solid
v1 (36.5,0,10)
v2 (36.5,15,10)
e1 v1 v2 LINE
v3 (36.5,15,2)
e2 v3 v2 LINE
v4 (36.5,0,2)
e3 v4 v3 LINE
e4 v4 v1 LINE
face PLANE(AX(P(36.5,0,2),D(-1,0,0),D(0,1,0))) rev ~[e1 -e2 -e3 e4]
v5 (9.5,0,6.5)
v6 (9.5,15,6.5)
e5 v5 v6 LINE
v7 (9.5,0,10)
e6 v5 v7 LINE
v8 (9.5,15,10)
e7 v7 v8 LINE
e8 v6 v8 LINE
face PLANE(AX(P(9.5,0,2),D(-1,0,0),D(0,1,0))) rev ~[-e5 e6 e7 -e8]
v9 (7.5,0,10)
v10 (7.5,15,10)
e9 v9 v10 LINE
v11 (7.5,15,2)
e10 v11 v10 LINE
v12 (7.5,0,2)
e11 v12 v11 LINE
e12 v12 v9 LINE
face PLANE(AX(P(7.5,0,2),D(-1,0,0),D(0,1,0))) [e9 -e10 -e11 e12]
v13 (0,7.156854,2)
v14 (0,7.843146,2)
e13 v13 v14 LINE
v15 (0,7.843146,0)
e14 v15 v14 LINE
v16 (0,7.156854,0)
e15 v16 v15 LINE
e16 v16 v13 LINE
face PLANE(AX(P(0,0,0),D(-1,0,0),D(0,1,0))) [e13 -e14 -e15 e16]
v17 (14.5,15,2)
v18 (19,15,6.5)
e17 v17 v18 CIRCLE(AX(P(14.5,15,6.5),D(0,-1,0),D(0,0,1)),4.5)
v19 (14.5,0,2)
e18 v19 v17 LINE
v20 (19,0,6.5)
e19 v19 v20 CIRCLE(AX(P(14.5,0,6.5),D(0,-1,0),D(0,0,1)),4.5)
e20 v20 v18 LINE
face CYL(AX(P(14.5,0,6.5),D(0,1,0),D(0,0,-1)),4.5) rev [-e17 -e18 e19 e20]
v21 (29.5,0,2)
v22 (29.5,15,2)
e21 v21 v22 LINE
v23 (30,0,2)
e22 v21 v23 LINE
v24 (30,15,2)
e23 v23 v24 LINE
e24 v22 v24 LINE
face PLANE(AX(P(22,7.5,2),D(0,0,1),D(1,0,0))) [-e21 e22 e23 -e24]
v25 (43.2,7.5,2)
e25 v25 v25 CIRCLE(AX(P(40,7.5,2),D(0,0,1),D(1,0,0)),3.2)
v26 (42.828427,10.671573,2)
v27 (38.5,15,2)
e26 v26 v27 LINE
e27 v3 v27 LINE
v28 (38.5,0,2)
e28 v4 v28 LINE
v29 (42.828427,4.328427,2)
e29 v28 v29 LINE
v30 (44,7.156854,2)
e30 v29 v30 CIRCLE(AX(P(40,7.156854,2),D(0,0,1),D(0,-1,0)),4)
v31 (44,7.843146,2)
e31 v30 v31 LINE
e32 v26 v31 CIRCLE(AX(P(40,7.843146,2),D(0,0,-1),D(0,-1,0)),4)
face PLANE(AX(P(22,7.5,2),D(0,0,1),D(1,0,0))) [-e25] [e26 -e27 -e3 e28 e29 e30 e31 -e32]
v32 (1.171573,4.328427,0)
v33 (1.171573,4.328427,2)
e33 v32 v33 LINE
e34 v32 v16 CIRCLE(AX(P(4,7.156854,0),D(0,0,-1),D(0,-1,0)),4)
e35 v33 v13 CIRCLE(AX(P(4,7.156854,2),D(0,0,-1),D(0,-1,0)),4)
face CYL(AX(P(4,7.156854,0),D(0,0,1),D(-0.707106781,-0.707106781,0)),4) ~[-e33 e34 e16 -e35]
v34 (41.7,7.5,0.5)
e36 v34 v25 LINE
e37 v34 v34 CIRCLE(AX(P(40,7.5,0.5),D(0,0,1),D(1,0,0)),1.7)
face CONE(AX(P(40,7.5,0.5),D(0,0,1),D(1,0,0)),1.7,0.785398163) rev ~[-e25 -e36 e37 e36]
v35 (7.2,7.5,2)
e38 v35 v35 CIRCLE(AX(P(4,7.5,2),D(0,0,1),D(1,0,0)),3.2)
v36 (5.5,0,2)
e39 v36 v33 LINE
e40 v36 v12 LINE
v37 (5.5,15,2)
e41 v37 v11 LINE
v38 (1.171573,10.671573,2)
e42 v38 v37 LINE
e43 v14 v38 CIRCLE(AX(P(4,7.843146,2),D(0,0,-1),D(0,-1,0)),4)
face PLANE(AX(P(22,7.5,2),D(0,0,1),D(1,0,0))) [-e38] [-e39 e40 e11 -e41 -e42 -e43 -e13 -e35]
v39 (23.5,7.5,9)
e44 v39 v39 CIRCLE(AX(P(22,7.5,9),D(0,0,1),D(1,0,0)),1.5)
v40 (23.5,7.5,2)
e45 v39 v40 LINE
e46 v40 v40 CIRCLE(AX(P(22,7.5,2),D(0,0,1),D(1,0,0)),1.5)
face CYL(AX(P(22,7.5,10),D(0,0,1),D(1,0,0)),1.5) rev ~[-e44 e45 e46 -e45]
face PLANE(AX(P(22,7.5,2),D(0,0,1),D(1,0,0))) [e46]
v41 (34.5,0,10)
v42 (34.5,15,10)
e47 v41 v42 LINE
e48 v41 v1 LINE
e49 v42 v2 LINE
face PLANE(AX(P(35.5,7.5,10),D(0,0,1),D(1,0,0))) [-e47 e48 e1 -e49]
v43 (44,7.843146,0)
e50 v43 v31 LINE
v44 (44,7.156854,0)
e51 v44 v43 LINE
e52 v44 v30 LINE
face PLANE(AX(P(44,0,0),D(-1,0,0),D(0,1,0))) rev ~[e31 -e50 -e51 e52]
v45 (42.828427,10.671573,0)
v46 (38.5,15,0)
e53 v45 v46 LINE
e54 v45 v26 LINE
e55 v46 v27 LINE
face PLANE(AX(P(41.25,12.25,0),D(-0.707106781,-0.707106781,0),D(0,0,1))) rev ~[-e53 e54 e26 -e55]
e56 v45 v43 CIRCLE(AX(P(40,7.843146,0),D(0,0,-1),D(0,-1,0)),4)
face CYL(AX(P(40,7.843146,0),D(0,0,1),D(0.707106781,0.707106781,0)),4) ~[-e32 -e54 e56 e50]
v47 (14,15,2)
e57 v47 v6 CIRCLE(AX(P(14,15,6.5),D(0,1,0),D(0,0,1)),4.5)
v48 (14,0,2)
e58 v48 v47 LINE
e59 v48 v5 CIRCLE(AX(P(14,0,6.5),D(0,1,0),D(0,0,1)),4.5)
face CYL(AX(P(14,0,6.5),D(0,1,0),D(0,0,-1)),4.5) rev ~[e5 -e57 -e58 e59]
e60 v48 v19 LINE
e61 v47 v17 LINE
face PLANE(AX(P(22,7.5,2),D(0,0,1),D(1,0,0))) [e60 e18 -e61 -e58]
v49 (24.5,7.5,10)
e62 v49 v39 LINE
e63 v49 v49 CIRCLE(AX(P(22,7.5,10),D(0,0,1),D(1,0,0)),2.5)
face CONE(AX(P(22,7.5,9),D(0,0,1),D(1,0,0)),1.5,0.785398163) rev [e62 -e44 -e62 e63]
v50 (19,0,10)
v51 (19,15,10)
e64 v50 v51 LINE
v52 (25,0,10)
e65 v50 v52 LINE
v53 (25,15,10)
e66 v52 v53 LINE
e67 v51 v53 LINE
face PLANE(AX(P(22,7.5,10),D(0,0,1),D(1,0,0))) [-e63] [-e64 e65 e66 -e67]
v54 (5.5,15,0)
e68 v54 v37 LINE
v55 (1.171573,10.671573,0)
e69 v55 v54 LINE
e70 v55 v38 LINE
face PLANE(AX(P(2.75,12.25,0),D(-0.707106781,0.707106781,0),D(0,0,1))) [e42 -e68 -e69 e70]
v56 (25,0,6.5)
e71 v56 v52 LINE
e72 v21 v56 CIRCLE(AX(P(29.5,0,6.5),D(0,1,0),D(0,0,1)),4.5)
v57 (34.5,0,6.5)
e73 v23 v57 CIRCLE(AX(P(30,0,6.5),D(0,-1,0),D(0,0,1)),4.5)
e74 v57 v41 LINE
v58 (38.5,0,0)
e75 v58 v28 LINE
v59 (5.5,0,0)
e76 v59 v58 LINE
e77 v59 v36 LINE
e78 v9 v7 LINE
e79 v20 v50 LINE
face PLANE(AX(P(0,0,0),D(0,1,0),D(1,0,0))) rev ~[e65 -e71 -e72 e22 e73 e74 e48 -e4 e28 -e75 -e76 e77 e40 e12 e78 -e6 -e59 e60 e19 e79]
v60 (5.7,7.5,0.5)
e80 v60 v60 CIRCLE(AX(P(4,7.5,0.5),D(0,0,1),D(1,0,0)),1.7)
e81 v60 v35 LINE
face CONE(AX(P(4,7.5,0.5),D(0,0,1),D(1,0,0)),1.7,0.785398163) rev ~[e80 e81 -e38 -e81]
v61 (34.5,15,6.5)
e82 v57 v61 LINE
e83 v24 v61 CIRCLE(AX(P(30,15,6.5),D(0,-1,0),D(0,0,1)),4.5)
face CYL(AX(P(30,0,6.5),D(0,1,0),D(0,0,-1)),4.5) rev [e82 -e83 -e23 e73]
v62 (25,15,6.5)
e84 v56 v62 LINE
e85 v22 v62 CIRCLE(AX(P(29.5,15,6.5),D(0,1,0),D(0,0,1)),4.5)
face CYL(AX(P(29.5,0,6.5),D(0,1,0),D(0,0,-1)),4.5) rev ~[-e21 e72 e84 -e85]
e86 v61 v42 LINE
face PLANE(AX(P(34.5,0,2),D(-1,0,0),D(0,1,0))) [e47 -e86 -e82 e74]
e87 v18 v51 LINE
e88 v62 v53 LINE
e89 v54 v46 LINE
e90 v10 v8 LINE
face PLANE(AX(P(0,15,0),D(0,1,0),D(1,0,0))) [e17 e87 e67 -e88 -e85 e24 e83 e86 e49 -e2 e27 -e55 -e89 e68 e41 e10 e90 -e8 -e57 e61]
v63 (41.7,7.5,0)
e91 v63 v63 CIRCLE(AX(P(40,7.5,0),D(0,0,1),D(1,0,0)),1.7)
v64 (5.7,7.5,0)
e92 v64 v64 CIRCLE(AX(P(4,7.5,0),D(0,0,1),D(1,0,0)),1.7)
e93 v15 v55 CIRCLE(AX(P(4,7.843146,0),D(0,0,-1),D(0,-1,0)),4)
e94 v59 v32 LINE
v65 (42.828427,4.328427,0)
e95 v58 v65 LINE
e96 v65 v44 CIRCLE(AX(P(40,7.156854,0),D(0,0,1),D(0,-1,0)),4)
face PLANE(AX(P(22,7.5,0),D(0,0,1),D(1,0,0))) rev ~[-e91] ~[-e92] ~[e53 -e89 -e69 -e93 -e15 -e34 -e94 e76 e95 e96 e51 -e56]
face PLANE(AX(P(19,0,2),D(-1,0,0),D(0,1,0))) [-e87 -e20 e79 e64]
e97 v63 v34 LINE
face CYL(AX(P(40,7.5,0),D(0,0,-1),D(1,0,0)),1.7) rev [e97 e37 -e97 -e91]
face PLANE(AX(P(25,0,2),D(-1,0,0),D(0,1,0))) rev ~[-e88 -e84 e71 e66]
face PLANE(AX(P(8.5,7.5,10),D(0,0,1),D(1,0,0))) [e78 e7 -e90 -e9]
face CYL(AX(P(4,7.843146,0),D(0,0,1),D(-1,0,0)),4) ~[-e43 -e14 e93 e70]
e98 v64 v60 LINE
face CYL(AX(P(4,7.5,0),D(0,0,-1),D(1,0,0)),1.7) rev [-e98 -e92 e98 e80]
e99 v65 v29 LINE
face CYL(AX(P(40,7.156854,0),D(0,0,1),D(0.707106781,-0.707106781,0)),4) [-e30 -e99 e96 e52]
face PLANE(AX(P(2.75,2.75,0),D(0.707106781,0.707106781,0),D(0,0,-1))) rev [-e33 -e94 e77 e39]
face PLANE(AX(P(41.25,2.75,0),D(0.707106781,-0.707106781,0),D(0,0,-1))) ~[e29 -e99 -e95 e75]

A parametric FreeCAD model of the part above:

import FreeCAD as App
import Part
import Sketcher
Q = App.Units.Quantity


def edges_at(feature, points):
    """Names of the edges that pass closest to the given points."""
    edges = feature.Shape.Edges
    near = lambda p: min(range(len(edges)), key=lambda i: edges[i].distToShape(Part.Vertex(*p))[0])
    return sorted({f"Edge{near(p) + 1}" for p in points})


def add_polygon(sketch, points):
    """Adds a closed chain of lines whose ends are joined by coincident constraints."""
    first, n = sketch.GeometryCount, len(points)
    for a, b in zip(points, points[1:] + points[:1]):
        sketch.addGeometry(Part.LineSegment(App.Vector(*a, 0), App.Vector(*b, 0)), False)
    for i in range(n):
        sketch.addConstraint(Sketcher.Constraint("Coincident", first + i, 2, first + (i + 1) % n, 1))

doc = App.newDocument("Part")
body = doc.addObject("PartDesign::Body", "Body")

sketch1 = doc.addObject("Sketcher::SketchObject", "Sketch")
body.addObject(sketch1)
sketch1.AttachmentSupport = (doc.XY_Plane, [""])
sketch1.MapMode = "FlatFace"
add_polygon(sketch1, [(0, 15), (0, 0), (44, 0), (44, 15)])
sketch1.addGeometry(Part.Circle(App.Vector(4, 7.5, 0), App.Vector(0, 0, 1), 1.7), False)
sketch1.addGeometry(Part.Circle(App.Vector(40, 7.5, 0), App.Vector(0, 0, 1), 1.7), False)
sketch1.addConstraint(Sketcher.Constraint("Vertical", 0))
sketch1.addConstraint(Sketcher.Constraint("Horizontal", 1))
sketch1.addConstraint(Sketcher.Constraint("Vertical", 2))
sketch1.addConstraint(Sketcher.Constraint("Horizontal", 3))
sketch1.addConstraint(Sketcher.Constraint("Coincident", 0, 2, -1, 1))
sketch1.addConstraint(Sketcher.Constraint("Equal", 4, 5))
sketch1.addConstraint(Sketcher.Constraint("Horizontal", 4, 3, 5, 3))
sketch1.addConstraint(Sketcher.Constraint("Diameter", 4, Q("3.4 mm")))
sketch1.addConstraint(Sketcher.Constraint("DistanceX", 1, 1, 1, 2, Q("44 mm")))
sketch1.addConstraint(Sketcher.Constraint("DistanceY", 0, 2, 0, 1, Q("15 mm")))
sketch1.addConstraint(Sketcher.Constraint("DistanceX", -1, 1, 4, 3, Q("4 mm")))
sketch1.addConstraint(Sketcher.Constraint("DistanceX", -1, 1, 5, 3, Q("40 mm")))
sketch1.addConstraint(Sketcher.Constraint("DistanceY", -1, 1, 4, 3, Q("7.5 mm")))
pad1 = doc.addObject("PartDesign::Pad", "Pad")
body.addObject(pad1)
pad1.Profile = sketch1
pad1.Length = 2
doc.recompute()

chamfer = doc.addObject("PartDesign::Chamfer", "Chamfer")
body.addObject(chamfer)
chamfer.Base = (pad1, edges_at(pad1, [(2.3, 7.5, 2), (38.3, 7.5, 2)]))
chamfer.Size = 1.5

sketch2 = doc.addObject("Sketcher::SketchObject", "Sketch001")
body.addObject(sketch2)
sketch2.AttachmentSupport = (doc.XY_Plane, [""])
sketch2.MapMode = "FlatFace"
sketch2.AttachmentOffset = App.Placement(App.Vector(0, 0, 2), App.Rotation())
add_polygon(sketch2, [(7.5, 15), (7.5, 0), (9.5, 0), (9.5, 15)])
add_polygon(sketch2, [(34.5, 15), (34.5, 0), (36.5, 0), (36.5, 15)])
add_polygon(sketch2, [(19, 15), (19, 0), (25, 0), (25, 15)])
sketch2.addConstraint(Sketcher.Constraint("Vertical", 0))
sketch2.addConstraint(Sketcher.Constraint("Horizontal", 1))
sketch2.addConstraint(Sketcher.Constraint("Vertical", 2))
sketch2.addConstraint(Sketcher.Constraint("Horizontal", 3))
sketch2.addConstraint(Sketcher.Constraint("Vertical", 4))
sketch2.addConstraint(Sketcher.Constraint("Horizontal", 5))
sketch2.addConstraint(Sketcher.Constraint("Vertical", 6))
sketch2.addConstraint(Sketcher.Constraint("Horizontal", 7))
sketch2.addConstraint(Sketcher.Constraint("Vertical", 8))
sketch2.addConstraint(Sketcher.Constraint("Horizontal", 9))
sketch2.addConstraint(Sketcher.Constraint("Vertical", 10))
sketch2.addConstraint(Sketcher.Constraint("Horizontal", 11))
sketch2.addConstraint(Sketcher.Constraint("PointOnObject", 0, 2, -1))
sketch2.addConstraint(Sketcher.Constraint("PointOnObject", 4, 2, -1))
sketch2.addConstraint(Sketcher.Constraint("PointOnObject", 8, 2, -1))
sketch2.addConstraint(Sketcher.Constraint("Horizontal", 3, 2, 6, 2))
sketch2.addConstraint(Sketcher.Constraint("Horizontal", 7, 2, 10, 2))
sketch2.addConstraint(Sketcher.Constraint("Equal", 3, 5))
sketch2.addConstraint(Sketcher.Constraint("DistanceX", 1, 1, 1, 2, Q("2 mm")))
sketch2.addConstraint(Sketcher.Constraint("DistanceX", 9, 1, 9, 2, Q("6 mm")))
sketch2.addConstraint(Sketcher.Constraint("DistanceY", 0, 2, 0, 1, Q("15 mm")))
sketch2.addConstraint(Sketcher.Constraint("DistanceX", -1, 1, 8, 2, Q("19 mm")))
sketch2.addConstraint(Sketcher.Constraint("DistanceX", 1, 2, 4, 2, Q("25 mm")))
sketch2.addConstraint(Sketcher.Constraint("DistanceX", -1, 1, 0, 2, Q("7.5 mm")))
pad2 = doc.addObject("PartDesign::Pad", "Pad001")
body.addObject(pad2)
pad2.Profile = sketch2
pad2.Length = 8
doc.recompute()

fillet = doc.addObject("PartDesign::Fillet", "Fillet")
body.addObject(fillet)
fillet.Base = (pad2, edges_at(pad2, [
    (9.5, 7.5, 2),
    (19, 7.5, 2),
    (25, 7.5, 2),
    (34.5, 7.5, 2),
]))
fillet.Radius = 4.5

sketch3 = doc.addObject("Sketcher::SketchObject", "Sketch002")
body.addObject(sketch3)
sketch3.AttachmentSupport = (doc.XY_Plane, [""])
sketch3.MapMode = "FlatFace"
sketch3.AttachmentOffset = App.Placement(App.Vector(0, 0, 10), App.Rotation())
sketch3.addGeometry(Part.Circle(App.Vector(22, 7.5, 0), App.Vector(0, 0, 1), 1.5), False)
sketch3.addConstraint(Sketcher.Constraint("Diameter", 0, Q("3 mm")))
sketch3.addConstraint(Sketcher.Constraint("DistanceX", -1, 1, 0, 3, Q("22 mm")))
sketch3.addConstraint(Sketcher.Constraint("DistanceY", -1, 1, 0, 3, Q("7.5 mm")))
pocket1 = doc.addObject("PartDesign::Pocket", "Pocket")
body.addObject(pocket1)
pocket1.Profile = sketch3
pocket1.Length = 8
doc.recompute()

chamfer2 = doc.addObject("PartDesign::Chamfer", "Chamfer001")
body.addObject(chamfer2)
chamfer2.Base = (pocket1, edges_at(pocket1, [
    (0, 0, 1),
    (0, 15, 1),
    (44, 15, 1),
    (44, 0, 1),
]))
chamfer2.Size = 5.5
doc.recompute()

fillet2 = doc.addObject("PartDesign::Fillet", "Fillet001")
body.addObject(fillet2)
fillet2.Base = (chamfer2, edges_at(chamfer2, [
    (0, 5.5, 1),
    (0, 9.5, 1),
    (44, 9.5, 1),
    (44, 5.5, 1),
]))
fillet2.Radius = 4
doc.recompute()

chamfer3 = doc.addObject("PartDesign::Chamfer", "Chamfer002")
body.addObject(chamfer3)
chamfer3.Base = (fillet2, edges_at(fillet2, [(20.5, 7.5, 10)]))
chamfer3.Size = 1

doc.recompute()
